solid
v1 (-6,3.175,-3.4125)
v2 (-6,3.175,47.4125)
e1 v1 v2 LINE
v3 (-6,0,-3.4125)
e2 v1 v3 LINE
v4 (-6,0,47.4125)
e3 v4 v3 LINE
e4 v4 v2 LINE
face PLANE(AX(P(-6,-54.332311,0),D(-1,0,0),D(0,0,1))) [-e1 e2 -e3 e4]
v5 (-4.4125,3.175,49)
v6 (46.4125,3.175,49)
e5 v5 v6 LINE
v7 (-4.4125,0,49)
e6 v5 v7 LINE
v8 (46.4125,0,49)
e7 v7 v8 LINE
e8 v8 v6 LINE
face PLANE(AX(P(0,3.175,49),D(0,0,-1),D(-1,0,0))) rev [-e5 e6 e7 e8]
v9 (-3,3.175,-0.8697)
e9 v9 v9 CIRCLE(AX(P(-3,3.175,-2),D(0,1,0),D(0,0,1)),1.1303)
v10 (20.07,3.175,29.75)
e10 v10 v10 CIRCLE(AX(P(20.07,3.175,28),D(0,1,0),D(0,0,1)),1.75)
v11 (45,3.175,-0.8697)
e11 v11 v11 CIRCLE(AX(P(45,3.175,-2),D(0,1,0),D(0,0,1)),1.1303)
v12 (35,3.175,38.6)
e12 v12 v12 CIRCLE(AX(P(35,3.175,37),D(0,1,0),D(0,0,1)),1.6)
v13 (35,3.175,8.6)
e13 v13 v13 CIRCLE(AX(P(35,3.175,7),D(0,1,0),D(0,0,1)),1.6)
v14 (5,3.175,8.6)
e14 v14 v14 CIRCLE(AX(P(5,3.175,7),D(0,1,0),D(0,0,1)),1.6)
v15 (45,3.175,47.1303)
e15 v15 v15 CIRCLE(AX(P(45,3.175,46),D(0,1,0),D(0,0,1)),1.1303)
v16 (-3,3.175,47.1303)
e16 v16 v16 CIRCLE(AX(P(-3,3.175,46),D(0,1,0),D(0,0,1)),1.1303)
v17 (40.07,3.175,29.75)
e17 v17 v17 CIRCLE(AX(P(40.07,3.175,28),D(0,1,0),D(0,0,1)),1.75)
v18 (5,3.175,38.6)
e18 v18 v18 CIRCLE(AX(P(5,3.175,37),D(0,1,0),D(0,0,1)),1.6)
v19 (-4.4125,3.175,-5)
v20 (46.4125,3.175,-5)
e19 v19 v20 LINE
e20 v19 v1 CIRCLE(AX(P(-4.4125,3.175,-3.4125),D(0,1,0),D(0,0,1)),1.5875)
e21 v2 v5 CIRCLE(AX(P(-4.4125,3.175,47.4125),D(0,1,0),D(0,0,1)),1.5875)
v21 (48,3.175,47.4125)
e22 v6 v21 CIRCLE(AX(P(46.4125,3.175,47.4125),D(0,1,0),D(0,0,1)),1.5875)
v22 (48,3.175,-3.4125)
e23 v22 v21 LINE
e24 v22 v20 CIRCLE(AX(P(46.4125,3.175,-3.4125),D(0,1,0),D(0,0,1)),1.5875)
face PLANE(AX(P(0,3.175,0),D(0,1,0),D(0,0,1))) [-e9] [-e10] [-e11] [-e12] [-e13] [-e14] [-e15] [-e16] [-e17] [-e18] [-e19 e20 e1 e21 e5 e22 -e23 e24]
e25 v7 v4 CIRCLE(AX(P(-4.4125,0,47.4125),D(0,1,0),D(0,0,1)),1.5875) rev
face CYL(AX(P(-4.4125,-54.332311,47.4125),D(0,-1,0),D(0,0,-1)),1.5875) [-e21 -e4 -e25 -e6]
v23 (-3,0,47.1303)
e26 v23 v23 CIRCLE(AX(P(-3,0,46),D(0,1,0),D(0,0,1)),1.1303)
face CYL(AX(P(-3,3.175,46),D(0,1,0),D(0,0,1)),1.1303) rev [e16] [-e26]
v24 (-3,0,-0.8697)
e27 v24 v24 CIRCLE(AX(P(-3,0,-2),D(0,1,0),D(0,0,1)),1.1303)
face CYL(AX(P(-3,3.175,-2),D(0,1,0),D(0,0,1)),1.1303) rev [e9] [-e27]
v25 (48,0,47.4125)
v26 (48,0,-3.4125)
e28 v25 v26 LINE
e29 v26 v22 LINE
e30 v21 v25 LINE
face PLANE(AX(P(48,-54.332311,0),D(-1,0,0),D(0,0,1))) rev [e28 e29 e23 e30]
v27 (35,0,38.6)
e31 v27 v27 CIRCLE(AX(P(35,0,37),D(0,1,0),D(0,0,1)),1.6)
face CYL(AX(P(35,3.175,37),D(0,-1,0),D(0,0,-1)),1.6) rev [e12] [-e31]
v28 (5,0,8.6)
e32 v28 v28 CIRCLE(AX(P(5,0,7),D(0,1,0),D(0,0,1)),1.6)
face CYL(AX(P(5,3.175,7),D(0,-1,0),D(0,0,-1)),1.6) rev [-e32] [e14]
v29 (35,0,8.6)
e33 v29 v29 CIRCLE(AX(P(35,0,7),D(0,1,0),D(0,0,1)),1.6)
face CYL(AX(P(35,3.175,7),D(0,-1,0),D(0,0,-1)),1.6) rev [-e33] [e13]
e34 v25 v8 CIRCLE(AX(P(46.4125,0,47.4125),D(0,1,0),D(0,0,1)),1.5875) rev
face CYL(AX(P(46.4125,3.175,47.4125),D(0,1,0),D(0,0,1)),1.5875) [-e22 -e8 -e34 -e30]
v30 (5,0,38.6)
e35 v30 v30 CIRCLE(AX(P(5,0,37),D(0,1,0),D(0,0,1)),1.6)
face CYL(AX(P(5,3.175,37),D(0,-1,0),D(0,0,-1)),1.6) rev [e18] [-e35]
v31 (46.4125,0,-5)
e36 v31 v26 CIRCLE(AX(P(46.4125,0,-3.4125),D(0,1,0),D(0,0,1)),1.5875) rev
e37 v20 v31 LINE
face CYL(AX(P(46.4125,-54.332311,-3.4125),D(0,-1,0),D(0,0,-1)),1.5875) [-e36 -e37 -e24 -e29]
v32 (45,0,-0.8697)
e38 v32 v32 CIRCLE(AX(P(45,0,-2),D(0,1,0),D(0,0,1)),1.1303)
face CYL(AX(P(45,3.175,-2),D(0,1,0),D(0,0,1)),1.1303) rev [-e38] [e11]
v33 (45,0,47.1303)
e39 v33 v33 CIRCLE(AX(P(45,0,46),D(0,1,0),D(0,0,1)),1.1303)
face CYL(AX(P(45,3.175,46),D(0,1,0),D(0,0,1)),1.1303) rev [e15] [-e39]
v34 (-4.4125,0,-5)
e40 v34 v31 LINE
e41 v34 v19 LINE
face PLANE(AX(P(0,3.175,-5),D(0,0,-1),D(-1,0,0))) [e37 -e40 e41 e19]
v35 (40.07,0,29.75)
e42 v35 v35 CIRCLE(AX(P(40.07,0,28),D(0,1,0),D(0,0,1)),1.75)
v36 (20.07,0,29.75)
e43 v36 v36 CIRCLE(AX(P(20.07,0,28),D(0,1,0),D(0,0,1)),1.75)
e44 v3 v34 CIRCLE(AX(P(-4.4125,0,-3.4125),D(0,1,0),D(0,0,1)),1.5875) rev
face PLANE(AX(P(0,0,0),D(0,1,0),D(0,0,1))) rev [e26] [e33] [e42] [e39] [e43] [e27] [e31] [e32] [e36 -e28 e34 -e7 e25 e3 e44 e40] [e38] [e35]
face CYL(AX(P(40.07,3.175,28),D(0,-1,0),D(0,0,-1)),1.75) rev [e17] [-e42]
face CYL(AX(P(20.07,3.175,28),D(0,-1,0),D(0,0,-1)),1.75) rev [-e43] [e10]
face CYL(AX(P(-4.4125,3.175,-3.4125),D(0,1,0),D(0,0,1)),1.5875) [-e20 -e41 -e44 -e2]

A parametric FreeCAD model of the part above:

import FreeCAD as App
import Part
import Sketcher

V = App.Vector


def edges_at(feature, points):
    """Names of the edges that pass closest to the given points."""
    edges = feature.Shape.Edges
    near = lambda p: min(range(len(edges)), key=lambda i: edges[i].distToShape(Part.Vertex(*p))[0])
    return sorted({f"Edge{near(p) + 1}" for p in points})

doc = App.newDocument("Part")
body = doc.addObject("PartDesign::Body", "Body")

sketch1 = body.newObject("Sketcher::SketchObject", "Sketch")
sketch1.AttachmentSupport = (doc.getObject("XZ_Plane"), [""])
sketch1.MapMode = "FlatFace"
sketch1.addGeometry(Part.LineSegment(V(0, -5, 0), V(0, 49, 0)), False)
sketch1.addGeometry(Part.LineSegment(V(0, 49, 0), V(42, 49, 0)), False)
sketch1.addGeometry(Part.LineSegment(V(42, 49, 0), V(42, -5, 0)), False)
sketch1.addGeometry(Part.LineSegment(V(42, -5, 0), V(0, -5, 0)), False)
sketch1.addGeometry(Part.Circle(V(5, 37, 0), V(0, 0, 1), 1.6), False)
sketch1.addGeometry(Part.Circle(V(20.1, 28, 0), V(0, 0, 1), 1.8), False)
sketch1.addGeometry(Part.Circle(V(35, 37, 0), V(0, 0, 1), 1.6), False)
sketch1.addGeometry(Part.Circle(V(40.1, 28, 0), V(0, 0, 1), 1.8), False)
sketch1.addGeometry(Part.Circle(V(5, 7, 0), V(0, 0, 1), 1.6), False)
sketch1.addGeometry(Part.Circle(V(35, 7, 0), V(0, 0, 1), 1.6), False)
sketch1.addConstraint(Sketcher.Constraint("Coincident", 0, 2, 1, 1))
sketch1.addConstraint(Sketcher.Constraint("Coincident", 1, 2, 2, 1))
sketch1.addConstraint(Sketcher.Constraint("Coincident", 2, 2, 3, 1))
sketch1.addConstraint(Sketcher.Constraint("Coincident", 3, 2, 0, 1))
sketch1.addConstraint(Sketcher.Constraint("Vertical", 0))
sketch1.addConstraint(Sketcher.Constraint("Horizontal", 1))
sketch1.addConstraint(Sketcher.Constraint("Vertical", 2))
sketch1.addConstraint(Sketcher.Constraint("Horizontal", 3))
sketch1.addConstraint(Sketcher.Constraint("Equal", 4, 6))
sketch1.addConstraint(Sketcher.Constraint("Equal", 5, 7))
sketch1.addConstraint(Sketcher.Constraint("Equal", 6, 8))
sketch1.addConstraint(Sketcher.Constraint("Equal", 8, 9))
sketch1.addConstraint(Sketcher.Constraint("PointOnObject", 0, 2, -2))
sketch1.addConstraint(Sketcher.Constraint("Horizontal", 4, 3, 6, 3))
sketch1.addConstraint(Sketcher.Constraint("Horizontal", 5, 3, 7, 3))
sketch1.addConstraint(Sketcher.Constraint("Horizontal", 8, 3, 9, 3))
sketch1.addConstraint(Sketcher.Constraint("Vertical", 4, 3, 8, 3))
sketch1.addConstraint(Sketcher.Constraint("Vertical", 6, 3, 9, 3))
sketch1.addConstraint(Sketcher.Constraint("Diameter", 4, 3.2))
sketch1.addConstraint(Sketcher.Constraint("Diameter", 5, 3.5))
sketch1.addConstraint(Sketcher.Constraint("DistanceX", 1, 1, 1, 2, 42.0))
sketch1.addConstraint(Sketcher.Constraint("DistanceY", 0, 1, 0, 2, 54.0))
sketch1.addConstraint(Sketcher.Constraint("DistanceX", -1, 1, 4, 3, 5.0))
sketch1.addConstraint(Sketcher.Constraint("DistanceY", -1, 1, 4, 3, 37.0))
sketch1.addConstraint(Sketcher.Constraint("DistanceY", -1, 1, 5, 3, 28.0))
sketch1.addConstraint(Sketcher.Constraint("DistanceX", -1, 1, 6, 3, 35.0))
sketch1.addConstraint(Sketcher.Constraint("DistanceY", -1, 1, 8, 3, 7.0))
sketch1.addConstraint(Sketcher.Constraint("DistanceY", -1, 1, 0, 2, 49.0))
sketch1.addConstraint(Sketcher.Constraint("DistanceX", 5, 3, 7, 3, 20.0))
sketch1.addConstraint(Sketcher.Constraint("DistanceX", -1, 1, 5, 3, 20.07))
pad1 = body.newObject("PartDesign::Pad", "Pad")
pad1.Profile = sketch1
pad1.Length = 3.175
pad1.Reversed = True

sketch2 = body.newObject("Sketcher::SketchObject", "Sketch001")
sketch2.AttachmentSupport = (doc.getObject("XZ_Plane"), [""])
sketch2.MapMode = "FlatFace"
sketch2.AttachmentOffset = App.Placement(V(0, 0, -3.175), App.Rotation())
sketch2.addGeometry(Part.LineSegment(V(-6, -5, 0), V(-6, 49, 0)), False)
sketch2.addGeometry(Part.LineSegment(V(-6, 49, 0), V(0, 49, 0)), False)
sketch2.addGeometry(Part.LineSegment(V(0, 49, 0), V(0, -5, 0)), False)
sketch2.addGeometry(Part.LineSegment(V(0, -5, 0), V(-6, -5, 0)), False)
sketch2.addGeometry(Part.LineSegment(V(42, -5, 0), V(42, 49, 0)), False)
sketch2.addGeometry(Part.LineSegment(V(42, 49, 0), V(48, 49, 0)), False)
sketch2.addGeometry(Part.LineSegment(V(48, 49, 0), V(48, -5, 0)), False)
sketch2.addGeometry(Part.LineSegment(V(48, -5, 0), V(42, -5, 0)), False)
sketch2.addConstraint(Sketcher.Constraint("Coincident", 0, 2, 1, 1))
sketch2.addConstraint(Sketcher.Constraint("Coincident", 1, 2, 2, 1))
sketch2.addConstraint(Sketcher.Constraint("Coincident", 2, 2, 3, 1))
sketch2.addConstraint(Sketcher.Constraint("Coincident", 3, 2, 0, 1))
sketch2.addConstraint(Sketcher.Constraint("Coincident", 4, 2, 5, 1))
sketch2.addConstraint(Sketcher.Constraint("Coincident", 5, 2, 6, 1))
sketch2.addConstraint(Sketcher.Constraint("Coincident", 6, 2, 7, 1))
sketch2.addConstraint(Sketcher.Constraint("Coincident", 7, 2, 4, 1))
sketch2.addConstraint(Sketcher.Constraint("Vertical", 0))
sketch2.addConstraint(Sketcher.Constraint("Horizontal", 1))
sketch2.addConstraint(Sketcher.Constraint("Vertical", 2))
sketch2.addConstraint(Sketcher.Constraint("Horizontal", 3))
sketch2.addConstraint(Sketcher.Constraint("Vertical", 4))
sketch2.addConstraint(Sketcher.Constraint("Horizontal", 5))
sketch2.addConstraint(Sketcher.Constraint("Vertical", 6))
sketch2.addConstraint(Sketcher.Constraint("Horizontal", 7))
sketch2.addConstraint(Sketcher.Constraint("PointOnObject", 1, 2, -2))
sketch2.addConstraint(Sketcher.Constraint("Horizontal", 1, 2, 4, 2))
sketch2.addConstraint(Sketcher.Constraint("Horizontal", 3, 2, 6, 2))
sketch2.addConstraint(Sketcher.Constraint("Equal", 3, 5))
sketch2.addConstraint(Sketcher.Constraint("DistanceX", 1, 1, 1, 2, 6.0))
sketch2.addConstraint(Sketcher.Constraint("DistanceY", 0, 1, 0, 2, 54.0))
sketch2.addConstraint(Sketcher.Constraint("DistanceY", -1, 1, 0, 2, 49.0))
sketch2.addConstraint(Sketcher.Constraint("DistanceX", -1, 1, 4, 2, 42.0))
pad2 = body.newObject("PartDesign::Pad", "Pad001")
pad2.Profile = sketch2
pad2.Length = 3.175

sketch3 = body.newObject("Sketcher::SketchObject", "Sketch002")
sketch3.AttachmentSupport = (doc.getObject("XZ_Plane"), [""])
sketch3.MapMode = "FlatFace"
sketch3.AttachmentOffset = App.Placement(V(0, 0, -3.175), App.Rotation())
sketch3.addGeometry(Part.Circle(V(-3, -2, 0), V(0, 0, 1), 1.1), False)
sketch3.addGeometry(Part.Circle(V(-3, 46, 0), V(0, 0, 1), 1.1), False)
sketch3.addGeometry(Part.Circle(V(45, -2, 0), V(0, 0, 1), 1.1), False)
sketch3.addGeometry(Part.Circle(V(45, 46, 0), V(0, 0, 1), 1.1), False)
sketch3.addConstraint(Sketcher.Constraint("Equal", 0, 1))
sketch3.addConstraint(Sketcher.Constraint("Equal", 1, 2))
sketch3.addConstraint(Sketcher.Constraint("Equal", 2, 3))
sketch3.addConstraint(Sketcher.Constraint("Horizontal", 0, 3, 2, 3))
sketch3.addConstraint(Sketcher.Constraint("Horizontal", 1, 3, 3, 3))
sketch3.addConstraint(Sketcher.Constraint("Vertical", 0, 3, 1, 3))
sketch3.addConstraint(Sketcher.Constraint("Vertical", 2, 3, 3, 3))
sketch3.addConstraint(Sketcher.Constraint("DistanceX", 0, 3, -1, 1, 3.0))
sketch3.addConstraint(Sketcher.Constraint("DistanceY", 0, 3, -1, 1, 2.0))
sketch3.addConstraint(Sketcher.Constraint("DistanceY", -1, 1, 1, 3, 46.0))
sketch3.addConstraint(Sketcher.Constraint("DistanceX", -1, 1, 2, 3, 45.0))
sketch3.addConstraint(Sketcher.Constraint("Diameter", 0, 2.2606))
doc.recompute()
hole = body.newObject("PartDesign::Hole", "Hole")
hole.Profile = sketch3
hole.ThreadType = "None"
hole.Diameter = 2.2606
hole.DepthType = "ThroughAll"
hole.Reversed = True
doc.recompute()

fillet = body.newObject("PartDesign::Fillet", "Fillet")
fillet.Base = (hole, edges_at(hole, [
    (-6, 1.587, -5),
    (-6, 1.587, 49),
    (48, 1.587, 49),
    (48, 1.587, -5),
]))
fillet.Radius = 1.5875

doc.recompute()
